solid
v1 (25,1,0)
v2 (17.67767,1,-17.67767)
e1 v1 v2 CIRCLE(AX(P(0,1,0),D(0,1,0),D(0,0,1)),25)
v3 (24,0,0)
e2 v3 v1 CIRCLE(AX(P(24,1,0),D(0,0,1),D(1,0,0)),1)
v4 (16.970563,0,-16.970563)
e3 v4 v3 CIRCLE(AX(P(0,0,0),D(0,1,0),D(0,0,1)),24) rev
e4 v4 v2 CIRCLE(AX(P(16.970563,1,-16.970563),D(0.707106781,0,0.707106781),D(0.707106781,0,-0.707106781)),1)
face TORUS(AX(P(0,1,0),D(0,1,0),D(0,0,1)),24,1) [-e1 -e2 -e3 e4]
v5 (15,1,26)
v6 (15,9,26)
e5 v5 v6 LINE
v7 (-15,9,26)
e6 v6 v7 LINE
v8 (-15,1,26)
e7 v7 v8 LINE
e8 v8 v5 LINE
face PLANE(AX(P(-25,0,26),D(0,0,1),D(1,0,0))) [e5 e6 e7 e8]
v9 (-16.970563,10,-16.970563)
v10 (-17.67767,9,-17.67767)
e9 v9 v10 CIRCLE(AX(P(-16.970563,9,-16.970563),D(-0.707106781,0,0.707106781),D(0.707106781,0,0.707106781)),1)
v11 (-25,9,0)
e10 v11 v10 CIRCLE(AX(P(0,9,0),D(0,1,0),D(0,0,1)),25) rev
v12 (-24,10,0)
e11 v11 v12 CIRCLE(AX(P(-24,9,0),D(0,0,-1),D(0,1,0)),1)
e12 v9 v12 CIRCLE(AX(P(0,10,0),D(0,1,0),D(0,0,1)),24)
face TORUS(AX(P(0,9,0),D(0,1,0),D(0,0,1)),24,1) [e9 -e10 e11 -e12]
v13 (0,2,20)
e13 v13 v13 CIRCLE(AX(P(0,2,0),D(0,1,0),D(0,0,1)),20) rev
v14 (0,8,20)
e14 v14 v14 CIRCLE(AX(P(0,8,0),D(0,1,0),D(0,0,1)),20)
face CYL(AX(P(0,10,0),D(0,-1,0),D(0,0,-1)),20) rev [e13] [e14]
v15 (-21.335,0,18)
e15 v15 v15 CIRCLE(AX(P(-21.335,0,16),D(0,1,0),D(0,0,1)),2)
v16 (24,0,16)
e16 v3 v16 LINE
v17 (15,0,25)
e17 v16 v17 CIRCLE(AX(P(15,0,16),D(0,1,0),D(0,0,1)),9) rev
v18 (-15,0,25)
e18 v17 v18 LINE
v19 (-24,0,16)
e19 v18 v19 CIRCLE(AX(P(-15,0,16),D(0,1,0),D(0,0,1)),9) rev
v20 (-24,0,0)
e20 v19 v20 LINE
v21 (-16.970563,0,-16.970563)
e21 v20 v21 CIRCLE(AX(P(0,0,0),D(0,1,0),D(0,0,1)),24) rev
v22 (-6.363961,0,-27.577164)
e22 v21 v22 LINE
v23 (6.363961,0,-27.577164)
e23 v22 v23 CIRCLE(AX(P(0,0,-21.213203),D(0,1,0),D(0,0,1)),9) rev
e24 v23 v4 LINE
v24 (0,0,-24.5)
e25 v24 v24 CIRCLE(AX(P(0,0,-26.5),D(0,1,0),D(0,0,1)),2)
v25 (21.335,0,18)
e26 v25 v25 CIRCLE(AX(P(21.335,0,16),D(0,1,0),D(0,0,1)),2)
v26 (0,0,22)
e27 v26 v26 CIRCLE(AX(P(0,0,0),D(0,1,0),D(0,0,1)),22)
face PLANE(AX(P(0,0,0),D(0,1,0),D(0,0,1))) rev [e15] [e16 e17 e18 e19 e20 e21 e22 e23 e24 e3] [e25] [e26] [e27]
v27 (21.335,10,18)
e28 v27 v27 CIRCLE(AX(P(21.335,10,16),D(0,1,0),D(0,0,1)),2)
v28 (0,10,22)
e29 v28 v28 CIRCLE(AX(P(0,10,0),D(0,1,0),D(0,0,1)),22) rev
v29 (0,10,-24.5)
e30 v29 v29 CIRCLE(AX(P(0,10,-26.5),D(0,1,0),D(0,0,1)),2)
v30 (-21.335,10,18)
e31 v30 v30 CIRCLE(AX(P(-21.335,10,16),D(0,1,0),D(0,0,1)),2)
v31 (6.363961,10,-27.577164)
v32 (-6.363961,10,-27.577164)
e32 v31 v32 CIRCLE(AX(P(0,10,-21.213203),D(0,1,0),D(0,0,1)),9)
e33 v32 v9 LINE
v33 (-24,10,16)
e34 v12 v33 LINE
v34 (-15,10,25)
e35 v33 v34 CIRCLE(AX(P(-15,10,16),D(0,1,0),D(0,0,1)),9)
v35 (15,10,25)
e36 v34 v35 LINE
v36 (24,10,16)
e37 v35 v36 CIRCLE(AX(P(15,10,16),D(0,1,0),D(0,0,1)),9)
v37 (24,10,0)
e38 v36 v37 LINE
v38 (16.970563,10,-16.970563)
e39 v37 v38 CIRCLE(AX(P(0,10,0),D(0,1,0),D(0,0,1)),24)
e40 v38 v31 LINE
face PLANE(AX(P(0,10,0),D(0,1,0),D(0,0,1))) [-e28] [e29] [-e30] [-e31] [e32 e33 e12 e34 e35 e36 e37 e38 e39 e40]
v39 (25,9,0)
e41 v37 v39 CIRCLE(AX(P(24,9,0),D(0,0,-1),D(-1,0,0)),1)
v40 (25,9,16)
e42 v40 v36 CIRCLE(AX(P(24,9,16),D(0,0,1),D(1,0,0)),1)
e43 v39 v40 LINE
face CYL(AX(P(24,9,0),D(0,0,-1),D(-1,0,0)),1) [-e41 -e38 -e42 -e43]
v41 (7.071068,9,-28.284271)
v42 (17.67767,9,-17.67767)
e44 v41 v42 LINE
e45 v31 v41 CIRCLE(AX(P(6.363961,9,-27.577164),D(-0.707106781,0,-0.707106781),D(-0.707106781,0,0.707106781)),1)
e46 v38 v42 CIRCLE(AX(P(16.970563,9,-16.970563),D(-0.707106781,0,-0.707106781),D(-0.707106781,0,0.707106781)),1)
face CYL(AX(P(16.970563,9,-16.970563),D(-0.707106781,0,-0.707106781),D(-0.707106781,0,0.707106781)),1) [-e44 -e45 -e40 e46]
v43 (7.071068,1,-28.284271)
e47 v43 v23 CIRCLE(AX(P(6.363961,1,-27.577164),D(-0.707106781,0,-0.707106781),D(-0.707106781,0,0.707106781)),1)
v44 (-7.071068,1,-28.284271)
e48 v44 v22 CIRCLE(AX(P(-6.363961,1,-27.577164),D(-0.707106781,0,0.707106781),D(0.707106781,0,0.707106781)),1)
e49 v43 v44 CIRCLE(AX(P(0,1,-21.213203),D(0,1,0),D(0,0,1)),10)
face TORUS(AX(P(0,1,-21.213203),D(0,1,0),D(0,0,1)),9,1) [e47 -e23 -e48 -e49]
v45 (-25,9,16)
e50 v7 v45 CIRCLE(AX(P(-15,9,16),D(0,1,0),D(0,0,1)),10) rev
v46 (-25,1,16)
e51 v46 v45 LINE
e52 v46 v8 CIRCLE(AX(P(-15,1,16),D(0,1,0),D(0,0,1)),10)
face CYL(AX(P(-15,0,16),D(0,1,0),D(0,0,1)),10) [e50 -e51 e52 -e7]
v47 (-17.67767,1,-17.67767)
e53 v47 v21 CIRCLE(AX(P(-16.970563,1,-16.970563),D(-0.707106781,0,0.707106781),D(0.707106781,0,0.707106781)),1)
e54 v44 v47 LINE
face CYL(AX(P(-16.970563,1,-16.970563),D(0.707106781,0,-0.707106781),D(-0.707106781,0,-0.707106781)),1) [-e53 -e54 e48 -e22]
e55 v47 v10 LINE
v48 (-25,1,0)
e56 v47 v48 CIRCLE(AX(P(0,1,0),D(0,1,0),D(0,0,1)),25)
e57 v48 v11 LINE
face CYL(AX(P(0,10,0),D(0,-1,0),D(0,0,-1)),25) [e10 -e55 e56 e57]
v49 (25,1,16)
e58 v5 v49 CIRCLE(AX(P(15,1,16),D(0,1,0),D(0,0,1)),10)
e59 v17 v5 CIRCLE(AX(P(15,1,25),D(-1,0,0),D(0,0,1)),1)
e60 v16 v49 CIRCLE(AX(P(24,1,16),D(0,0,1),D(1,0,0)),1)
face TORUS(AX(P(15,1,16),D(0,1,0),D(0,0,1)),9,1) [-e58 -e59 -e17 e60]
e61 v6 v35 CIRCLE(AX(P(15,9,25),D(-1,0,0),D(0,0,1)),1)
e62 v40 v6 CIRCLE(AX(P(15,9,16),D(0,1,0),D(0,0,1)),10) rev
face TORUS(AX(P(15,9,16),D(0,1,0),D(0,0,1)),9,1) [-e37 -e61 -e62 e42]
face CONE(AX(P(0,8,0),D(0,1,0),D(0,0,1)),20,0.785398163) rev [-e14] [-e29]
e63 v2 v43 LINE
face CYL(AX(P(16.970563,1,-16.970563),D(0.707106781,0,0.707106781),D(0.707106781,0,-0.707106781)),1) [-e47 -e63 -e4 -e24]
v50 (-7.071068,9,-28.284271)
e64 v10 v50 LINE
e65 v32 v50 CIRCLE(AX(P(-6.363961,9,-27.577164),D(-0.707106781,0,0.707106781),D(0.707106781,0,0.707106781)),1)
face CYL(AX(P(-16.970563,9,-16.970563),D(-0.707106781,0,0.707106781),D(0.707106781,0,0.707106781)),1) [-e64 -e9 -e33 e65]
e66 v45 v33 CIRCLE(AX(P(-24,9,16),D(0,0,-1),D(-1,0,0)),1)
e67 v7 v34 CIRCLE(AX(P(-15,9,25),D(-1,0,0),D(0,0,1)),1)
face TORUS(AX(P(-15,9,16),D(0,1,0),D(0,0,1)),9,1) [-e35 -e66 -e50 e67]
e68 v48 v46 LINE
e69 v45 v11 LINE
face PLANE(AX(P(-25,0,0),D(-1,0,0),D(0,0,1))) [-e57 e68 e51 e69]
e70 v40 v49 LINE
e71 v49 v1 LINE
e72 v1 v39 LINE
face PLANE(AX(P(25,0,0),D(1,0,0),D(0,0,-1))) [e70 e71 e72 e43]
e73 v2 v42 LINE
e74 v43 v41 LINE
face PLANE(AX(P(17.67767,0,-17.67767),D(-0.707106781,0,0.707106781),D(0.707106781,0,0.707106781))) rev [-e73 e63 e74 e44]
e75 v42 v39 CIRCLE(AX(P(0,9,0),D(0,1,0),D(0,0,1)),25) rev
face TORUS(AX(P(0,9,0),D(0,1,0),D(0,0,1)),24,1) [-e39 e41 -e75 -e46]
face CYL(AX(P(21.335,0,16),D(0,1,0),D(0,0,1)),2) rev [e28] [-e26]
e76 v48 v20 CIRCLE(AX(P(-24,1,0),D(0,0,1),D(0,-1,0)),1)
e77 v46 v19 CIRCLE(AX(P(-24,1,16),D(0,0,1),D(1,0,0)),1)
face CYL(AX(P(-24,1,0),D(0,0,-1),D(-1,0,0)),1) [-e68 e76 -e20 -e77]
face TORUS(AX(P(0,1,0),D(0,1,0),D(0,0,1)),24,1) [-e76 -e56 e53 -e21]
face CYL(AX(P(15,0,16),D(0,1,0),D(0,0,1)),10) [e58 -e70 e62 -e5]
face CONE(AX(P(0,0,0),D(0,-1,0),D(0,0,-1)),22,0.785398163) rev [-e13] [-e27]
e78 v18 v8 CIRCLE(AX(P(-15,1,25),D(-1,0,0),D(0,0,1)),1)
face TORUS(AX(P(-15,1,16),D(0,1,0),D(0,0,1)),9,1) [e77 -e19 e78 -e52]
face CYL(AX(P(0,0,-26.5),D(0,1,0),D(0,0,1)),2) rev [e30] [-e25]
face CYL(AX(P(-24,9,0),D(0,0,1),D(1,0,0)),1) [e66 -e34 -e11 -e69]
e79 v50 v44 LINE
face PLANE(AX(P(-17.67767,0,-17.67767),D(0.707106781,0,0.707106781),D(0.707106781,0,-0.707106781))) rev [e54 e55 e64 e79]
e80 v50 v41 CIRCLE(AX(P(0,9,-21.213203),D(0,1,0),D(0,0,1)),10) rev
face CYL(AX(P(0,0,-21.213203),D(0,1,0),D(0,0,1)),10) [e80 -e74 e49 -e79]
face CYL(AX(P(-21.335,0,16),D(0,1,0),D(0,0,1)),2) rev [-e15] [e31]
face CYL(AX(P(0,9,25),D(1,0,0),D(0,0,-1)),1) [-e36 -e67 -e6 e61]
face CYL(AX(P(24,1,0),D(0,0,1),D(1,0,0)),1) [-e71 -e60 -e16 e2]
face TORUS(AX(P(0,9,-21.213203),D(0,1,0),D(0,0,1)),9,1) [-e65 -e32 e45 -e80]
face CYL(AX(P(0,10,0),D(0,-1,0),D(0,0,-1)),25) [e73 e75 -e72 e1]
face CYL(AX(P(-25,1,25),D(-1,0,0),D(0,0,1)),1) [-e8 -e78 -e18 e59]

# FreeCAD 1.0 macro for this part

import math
import FreeCAD as App
import Part
import Sketcher
Q = App.Units.Quantity


def edges_at(feature, points):
    """Names of the edges that pass closest to the given points."""
    edges = feature.Shape.Edges
    near = lambda p: min(range(len(edges)), key=lambda i: edges[i].distToShape(Part.Vertex(*p))[0])
    return sorted({f"Edge{near(p) + 1}" for p in points})

doc = App.newDocument("Part")
body = doc.addObject("PartDesign::Body", "Body")

# Sketch on XZ plane
sketch1 = body.newObject("Sketcher::SketchObject", "Sketch")
sketch1.AttachmentSupport = (doc.getObject("XZ_Plane"), [""])
sketch1.MapMode = "FlatFace"
sketch1.addGeometry([
    Part.Circle(App.Vector(0, 0, 0), App.Vector(0, 0, 1), 25),
    Part.Circle(App.Vector(0, 0, 0), App.Vector(0, 0, 1), 20),
], False)
sketch1.addConstraint([
    Sketcher.Constraint("Coincident", 0, 3, -1, 1),
    Sketcher.Constraint("Coincident", 1, 3, -1, 1),
    Sketcher.Constraint("Diameter", 0, Q("50 mm")),
    Sketcher.Constraint("Diameter", 1, Q("40 mm")),
])
pad1 = body.newObject("PartDesign::Pad", "Pad")
pad1.Profile = sketch1
pad1.Length = 10
pad1.Reversed = True

# Sketch on XZ plane
sketch2 = body.newObject("Sketcher::SketchObject", "Sketch001")
sketch2.AttachmentSupport = (doc.getObject("XZ_Plane"), [""])
sketch2.MapMode = "FlatFace"
sketch2.AttachmentOffset = App.Placement(App.Vector(0, 0, -10), App.Rotation())
sketch2.addGeometry([
    Part.LineSegment(App.Vector(-25, 26, 0), App.Vector(25, 26, 0)),
    Part.LineSegment(App.Vector(25, 26, 0), App.Vector(25, 0, 0)),
    Part.ArcOfCircle(Part.Circle(App.Vector(0, 0, 0), App.Vector(0, 0, 1), 25), math.radians(0), math.radians(180)),
    Part.LineSegment(App.Vector(-25, 0, 0), App.Vector(-25, 26, 0)),
], False)
sketch2.addConstraint([
    Sketcher.Constraint("Coincident", 0, 2, 1, 1),
    Sketcher.Constraint("Tangent", 1, 2, 2, 1),
    Sketcher.Constraint("Tangent", 2, 2, 3, 1),
    Sketcher.Constraint("Coincident", 3, 2, 0, 1),
    Sketcher.Constraint("Horizontal", 0),
    Sketcher.Constraint("Vertical", 1),
    Sketcher.Constraint("Vertical", 3),
    Sketcher.Constraint("Coincident", 2, 3, -1, 1),
    Sketcher.Constraint("Radius", 2, Q("25 mm")),
    Sketcher.Constraint("DistanceY", 1, 2, 1, 1, Q("26 mm")),
])
pad2 = body.newObject("PartDesign::Pad", "Pad001")
pad2.Profile = sketch2
pad2.Length = 10

# Sketch on XZ plane
sketch3 = body.newObject("Sketcher::SketchObject", "Sketch002")
sketch3.AttachmentSupport = (doc.getObject("XZ_Plane"), [""])
sketch3.MapMode = "FlatFace"
sketch3.AttachmentOffset = App.Placement(App.Vector(0, 0, -10), App.Rotation())
sketch3.addGeometry([
    Part.LineSegment(App.Vector(0, -35, 0), App.Vector(-18, -18, 0)),
    Part.ArcOfCircle(Part.Circle(App.Vector(0, 0, 0), App.Vector(0, 0, 1), 25), math.radians(-135), math.radians(-45)),
    Part.LineSegment(App.Vector(18, -18, 0), App.Vector(0, -35, 0)),
], False)
sketch3.addConstraint([
    Sketcher.Constraint("Tangent", 0, 2, 1, 1),
    Sketcher.Constraint("Tangent", 1, 2, 2, 1),
    Sketcher.Constraint("Coincident", 2, 2, 0, 1),
    Sketcher.Constraint("Coincident", 1, 3, -1, 1),
    Sketcher.Constraint("PointOnObject", 2, 2, -2),
    Sketcher.Constraint("Perpendicular", 0, 2),
    Sketcher.Constraint("Radius", 1, Q("25 mm")),
])
pad3 = body.newObject("PartDesign::Pad", "Pad002")
pad3.Profile = sketch3
pad3.Length = 10
doc.recompute()

fillet = body.newObject("PartDesign::Fillet", "Fillet")
fillet.Base = (pad3, edges_at(pad3, [(0, 5, -35.355)]))
fillet.Radius = 10

# Sketch on XZ plane
sketch4 = body.newObject("Sketcher::SketchObject", "Sketch003")
sketch4.AttachmentSupport = (doc.getObject("XZ_Plane"), [""])
sketch4.MapMode = "FlatFace"
sketch4.AttachmentOffset = App.Placement(App.Vector(0, 0, -10), App.Rotation())
sketch4.addGeometry([
    Part.Circle(App.Vector(-21.3, 16, 0), App.Vector(0, 0, 1), 2),
    Part.Circle(App.Vector(0, -26.5, 0), App.Vector(0, 0, 1), 2),
    Part.Circle(App.Vector(21.3, 16, 0), App.Vector(0, 0, 1), 2),
], False)
sketch4.addConstraint([
    Sketcher.Constraint("Equal", 0, 1),
    Sketcher.Constraint("Equal", 1, 2),
    Sketcher.Constraint("Symmetric", 0, 3, 2, 3, -2),
    Sketcher.Constraint("PointOnObject", 1, 3, -2),
    Sketcher.Constraint("Diameter", 0, Q("4 mm")),
    Sketcher.Constraint("DistanceY", -1, 1, 0, 3, Q("16 mm")),
    Sketcher.Constraint("DistanceY", 1, 3, -1, 1, Q("26.5 mm")),
    Sketcher.Constraint("DistanceX", 0, 3, 2, 3, Q("42.67 mm")),
])
pocket1 = body.newObject("PartDesign::Pocket", "Pocket")
pocket1.Profile = sketch4
pocket1.Length = 10
pocket1.Reversed = True
doc.recompute()

chamfer = body.newObject("PartDesign::Chamfer", "Chamfer")
chamfer.Base = (pocket1, edges_at(pocket1, [(-20, 0, 0)]))
chamfer.Size = 2
doc.recompute()

fillet2 = body.newObject("PartDesign::Fillet", "Fillet001")
fillet2.Base = (chamfer, edges_at(chamfer, [(-25, 5, 26), (25, 5, 26)]))
fillet2.Radius = 10
doc.recompute()

chamfer2 = body.newObject("PartDesign::Chamfer", "Chamfer001")
chamfer2.Base = (fillet2, edges_at(fillet2, [(-20, 10, 0)]))
chamfer2.Size = 2
doc.recompute()

fillet3 = body.newObject("PartDesign::Fillet", "Fillet002")
fillet3.Base = (chamfer2, edges_at(chamfer2, [
    (-25, 0, 8),
    (-25, 10, 8),
    (23.097, 0, -9.567),
    (-23.097, 0, -9.567),
    (-23.097, 10, -9.567),
    (-12.374, 10, -22.981),
    (-12.374, 0, -22.981),
    (12.374, 10, -22.981),
    (12.374, 0, -22.981),
    (0, 10, -31.213),
    (0, 0, -31.213),
    (23.097, 10, -9.567),
    (0, 10, 26),
    (0, 0, 26),
    (25, 10, 8),
    (-22.071, 10, 23.071),
    (22.071, 10, 23.071),
    (25, 0, 8),
    (-22.071, 0, 23.071),
    (22.071, 0, 23.071),
]))
fillet3.Radius = 1

doc.recompute()
